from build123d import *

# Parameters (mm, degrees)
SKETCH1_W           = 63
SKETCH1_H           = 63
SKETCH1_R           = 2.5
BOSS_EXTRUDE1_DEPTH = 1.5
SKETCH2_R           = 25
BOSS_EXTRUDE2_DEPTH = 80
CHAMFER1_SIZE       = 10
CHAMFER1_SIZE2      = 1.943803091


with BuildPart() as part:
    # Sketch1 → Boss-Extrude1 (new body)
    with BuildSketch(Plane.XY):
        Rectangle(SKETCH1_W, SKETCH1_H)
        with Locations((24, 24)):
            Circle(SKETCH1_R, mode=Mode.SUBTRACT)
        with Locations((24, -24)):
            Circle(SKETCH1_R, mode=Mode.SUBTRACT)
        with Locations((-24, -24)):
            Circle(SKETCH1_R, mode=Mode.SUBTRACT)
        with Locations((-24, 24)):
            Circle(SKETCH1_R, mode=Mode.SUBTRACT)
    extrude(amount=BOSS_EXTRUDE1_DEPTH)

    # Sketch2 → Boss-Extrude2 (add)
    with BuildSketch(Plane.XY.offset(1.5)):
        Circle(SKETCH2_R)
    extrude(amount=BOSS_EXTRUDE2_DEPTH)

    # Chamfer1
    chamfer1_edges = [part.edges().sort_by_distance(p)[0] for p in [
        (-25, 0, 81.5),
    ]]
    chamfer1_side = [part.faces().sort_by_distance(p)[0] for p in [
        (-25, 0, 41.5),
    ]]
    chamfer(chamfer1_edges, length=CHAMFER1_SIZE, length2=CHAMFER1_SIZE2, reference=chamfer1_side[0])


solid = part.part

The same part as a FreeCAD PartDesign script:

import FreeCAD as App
import Part
import Sketcher
from FreeCAD import Vector


def edges_at(feature, points):
    """Names of the edges that pass closest to the given points."""
    edges = feature.Shape.Edges
    near = lambda p: min(range(len(edges)), key=lambda i: edges[i].distToShape(Part.Vertex(*p))[0])
    return sorted({f"Edge{near(p) + 1}" for p in points})


def add_polygon(sketch, points):
    """Adds a closed chain of lines whose ends are joined by coincident constraints."""
    first, n = sketch.GeometryCount, len(points)
    for a, b in zip(points, points[1:] + points[:1]):
        sketch.addGeometry(Part.LineSegment(App.Vector(*a, 0), App.Vector(*b, 0)), False)
    for i in range(n):
        sketch.addConstraint(Sketcher.Constraint("Coincident", first + i, 2, first + (i + 1) % n, 1))

doc = App.newDocument("Part")
params = doc.addObject("Spreadsheet::Sheet", "Params")
for row, (alias, value) in enumerate([
    ("sketch1_diameter", "5 mm"),
    ("sketch1_width", "63 mm"),
    ("pad1_length", "1.5 mm"),
    ("sketch2_diameter", "50 mm"),
    ("pad2_length", "80 mm"),
    ("chamfer_size", "10 mm"),
    ("chamfer_size2", "1.943803 mm"),
], start=1):
    params.set(f"A{row}", alias)
    params.set(f"B{row}", "=" + value)
    params.setAlias(f"B{row}", alias)

body = doc.addObject("PartDesign::Body", "Body")

sketch1 = body.newObject("Sketcher::SketchObject", "Sketch")
sketch1.AttachmentSupport = (doc.getObject("XY_Plane"), [""])
sketch1.MapMode = "FlatFace"
add_polygon(sketch1, [(-31.5, 31.5), (-31.5, -31.5), (31.5, -31.5), (31.5, 31.5)])
sketch1.addGeometry(Part.Circle(Vector(-24, -24, 0), Vector(0, 0, 1), 2.5), False)
sketch1.addGeometry(Part.Circle(Vector(24, -24, 0), Vector(0, 0, 1), 2.5), False)
sketch1.addGeometry(Part.Circle(Vector(-24, 24, 0), Vector(0, 0, 1), 2.5), False)
sketch1.addGeometry(Part.Circle(Vector(24, 24, 0), Vector(0, 0, 1), 2.5), False)
sketch1.addConstraint(Sketcher.Constraint("Vertical", 0))
sketch1.addConstraint(Sketcher.Constraint("Horizontal", 1))
sketch1.addConstraint(Sketcher.Constraint("Vertical", 2))
sketch1.addConstraint(Sketcher.Constraint("Horizontal", 3))
sketch1.addConstraint(Sketcher.Constraint("Equal", 4, 5))
sketch1.addConstraint(Sketcher.Constraint("Equal", 5, 6))
sketch1.addConstraint(Sketcher.Constraint("Equal", 6, 7))
sketch1.addConstraint(Sketcher.Constraint("Symmetric", 5, 3, 6, 3, -1, 1))
sketch1.addConstraint(Sketcher.Constraint("Symmetric", 4, 3, 7, 3, -1, 1))
sketch1.addConstraint(Sketcher.Constraint("Symmetric", 0, 2, 2, 2, -1, 1))
sketch1.addConstraint(Sketcher.Constraint("Symmetric", 4, 3, 5, 3, -2))
sketch1.addConstraint(Sketcher.Constraint("Equal", 3, 0))
sketch1.addConstraint(Sketcher.Constraint("Diameter", 4, 5.0))
sketch1.addConstraint(Sketcher.Constraint("DistanceX", 1, 1, 1, 2, 63.0))
sketch1.addConstraint(Sketcher.Constraint("DistanceX", 4, 3, -1, 1, 24.0))
sketch1.addConstraint(Sketcher.Constraint("DistanceY", 4, 3, -1, 1, 24.0))
sketch1.setExpression("Constraints[16]", "Params.sketch1_diameter")
sketch1.setExpression("Constraints[17]", "Params.sketch1_width")
pad1 = body.newObject("PartDesign::Pad", "Pad")
pad1.Profile = sketch1
pad1.setExpression("Length", "Params.pad1_length")

sketch2 = body.newObject("Sketcher::SketchObject", "Sketch001")
sketch2.AttachmentSupport = (doc.getObject("XY_Plane"), [""])
sketch2.MapMode = "FlatFace"
sketch2.AttachmentOffset = App.Placement(Vector(0, 0, 1.5), App.Rotation())
sketch2.addGeometry(Part.Circle(Vector(0, 0, 0), Vector(0, 0, 1), 25), False)
sketch2.addConstraint(Sketcher.Constraint("Coincident", 0, 3, -1, 1))
sketch2.addConstraint(Sketcher.Constraint("Diameter", 0, 50.0))
sketch2.setExpression("Constraints[1]", "Params.sketch2_diameter")
pad2 = body.newObject("PartDesign::Pad", "Pad001")
pad2.Profile = sketch2
pad2.setExpression("Length", "Params.pad2_length")
doc.recompute()

chamfer = body.newObject("PartDesign::Chamfer", "Chamfer")
chamfer.Base = (pad2, edges_at(pad2, [(-25, 0, 81.5)]))
chamfer.ChamferType = "Two distances"
chamfer.setExpression("Size", "Params.chamfer_size")
chamfer.setExpression("Size2", "Params.chamfer_size2")

doc.recompute()
